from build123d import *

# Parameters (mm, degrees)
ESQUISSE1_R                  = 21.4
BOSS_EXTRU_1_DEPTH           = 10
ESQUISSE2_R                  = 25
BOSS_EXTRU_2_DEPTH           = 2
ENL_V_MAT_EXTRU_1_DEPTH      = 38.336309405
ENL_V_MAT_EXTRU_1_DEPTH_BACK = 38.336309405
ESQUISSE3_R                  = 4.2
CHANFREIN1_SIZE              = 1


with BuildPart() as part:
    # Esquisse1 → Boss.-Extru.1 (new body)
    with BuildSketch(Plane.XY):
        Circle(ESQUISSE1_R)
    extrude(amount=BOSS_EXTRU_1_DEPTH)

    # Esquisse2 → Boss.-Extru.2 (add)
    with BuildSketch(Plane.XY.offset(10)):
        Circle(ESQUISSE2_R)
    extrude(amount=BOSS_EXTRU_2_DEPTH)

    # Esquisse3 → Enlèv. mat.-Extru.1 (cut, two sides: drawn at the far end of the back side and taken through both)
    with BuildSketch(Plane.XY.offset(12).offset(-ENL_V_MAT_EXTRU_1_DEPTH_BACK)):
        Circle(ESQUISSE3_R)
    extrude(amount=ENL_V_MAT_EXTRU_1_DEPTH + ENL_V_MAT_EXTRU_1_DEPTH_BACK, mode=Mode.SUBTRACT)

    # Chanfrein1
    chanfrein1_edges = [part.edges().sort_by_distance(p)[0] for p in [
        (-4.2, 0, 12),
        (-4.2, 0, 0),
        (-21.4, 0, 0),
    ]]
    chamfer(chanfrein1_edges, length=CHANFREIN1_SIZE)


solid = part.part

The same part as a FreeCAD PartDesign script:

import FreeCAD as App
import Part
import Sketcher


def edges_at(feature, points):
    """Names of the edges that pass closest to the given points."""
    edges = feature.Shape.Edges
    near = lambda p: min(range(len(edges)), key=lambda i: edges[i].distToShape(Part.Vertex(*p))[0])
    return sorted({f"Edge{near(p) + 1}" for p in points})

doc = App.newDocument("Part")
body = doc.addObject("PartDesign::Body", "Body")

# Sketch on XY plane
sketch1 = body.newObject("Sketcher::SketchObject", "Sketch")
sketch1.AttachmentSupport = (doc.getObject("XY_Plane"), [""])
sketch1.MapMode = "FlatFace"
sketch1.addGeometry(Part.Circle(App.Vector(0, 0, 0), App.Vector(0, 0, 1), 21), False)
sketch1.addConstraint(Sketcher.Constraint("Coincident", 0, 3, -1, 1))
sketch1.addConstraint(Sketcher.Constraint("Diameter", 0, 42.8))
pad1 = body.newObject("PartDesign::Pad", "Pad")
pad1.Profile = sketch1
pad1.Length = 10

# Sketch on XY plane
sketch2 = body.newObject("Sketcher::SketchObject", "Sketch001")
sketch2.AttachmentSupport = (doc.getObject("XY_Plane"), [""])
sketch2.MapMode = "FlatFace"
sketch2.AttachmentOffset = App.Placement(App.Vector(0, 0, 10), App.Rotation())
sketch2.addGeometry(Part.Circle(App.Vector(0, 0, 0), App.Vector(0, 0, 1), 25), False)
sketch2.addConstraint(Sketcher.Constraint("Coincident", 0, 3, -1, 1))
sketch2.addConstraint(Sketcher.Constraint("Diameter", 0, 50.0))
pad2 = body.newObject("PartDesign::Pad", "Pad001")
pad2.Profile = sketch2
pad2.Length = 2

# Sketch on XY plane
sketch3 = body.newObject("Sketcher::SketchObject", "Sketch002")
sketch3.AttachmentSupport = (doc.getObject("XY_Plane"), [""])
sketch3.MapMode = "FlatFace"
sketch3.AttachmentOffset = App.Placement(App.Vector(0, 0, 12), App.Rotation())
sketch3.addGeometry(Part.Circle(App.Vector(0, 0, 0), App.Vector(0, 0, 1), 4.2), False)
sketch3.addConstraint(Sketcher.Constraint("Coincident", 0, 3, -1, 1))
sketch3.addConstraint(Sketcher.Constraint("Diameter", 0, 8.4))
pocket1 = body.newObject("PartDesign::Pocket", "Pocket")
pocket1.Profile = sketch3
pocket1.Type = "ThroughAll"
pocket1.Midplane = True
doc.recompute()

chamfer = body.newObject("PartDesign::Chamfer", "Chamfer")
chamfer.Base = (pocket1, edges_at(pocket1, [(-4.2, 0, 12), (-4.2, 0, 0), (-21.4, 0, 0)]))
chamfer.Size = 1

doc.recompute()
